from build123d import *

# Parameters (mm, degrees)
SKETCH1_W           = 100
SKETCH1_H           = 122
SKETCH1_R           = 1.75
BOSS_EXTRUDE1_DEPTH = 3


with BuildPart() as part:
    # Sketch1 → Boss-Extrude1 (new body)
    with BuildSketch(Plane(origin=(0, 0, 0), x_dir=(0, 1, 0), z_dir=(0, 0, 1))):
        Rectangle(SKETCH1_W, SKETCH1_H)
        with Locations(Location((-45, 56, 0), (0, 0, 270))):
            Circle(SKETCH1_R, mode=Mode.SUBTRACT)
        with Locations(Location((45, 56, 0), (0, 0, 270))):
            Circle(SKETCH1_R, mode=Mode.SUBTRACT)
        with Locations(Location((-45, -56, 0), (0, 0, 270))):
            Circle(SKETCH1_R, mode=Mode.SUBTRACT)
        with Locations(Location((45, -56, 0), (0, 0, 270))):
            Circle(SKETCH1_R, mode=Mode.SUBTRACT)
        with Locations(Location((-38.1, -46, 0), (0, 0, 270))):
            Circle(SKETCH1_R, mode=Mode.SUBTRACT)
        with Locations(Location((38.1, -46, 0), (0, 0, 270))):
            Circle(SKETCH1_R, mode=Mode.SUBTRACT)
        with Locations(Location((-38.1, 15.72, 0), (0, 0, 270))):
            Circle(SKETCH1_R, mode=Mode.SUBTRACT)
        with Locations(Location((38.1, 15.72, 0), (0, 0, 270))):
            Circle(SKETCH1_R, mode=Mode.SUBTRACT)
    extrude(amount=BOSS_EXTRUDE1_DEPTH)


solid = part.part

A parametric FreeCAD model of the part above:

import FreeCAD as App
import Part
import Sketcher

doc = App.newDocument("Part")
body = doc.addObject("PartDesign::Body", "Body")

# Sketch on XY plane
sketch1 = doc.addObject("Sketcher::SketchObject", "Sketch")
body.addObject(sketch1)
sketch1.AttachmentSupport = (doc.XY_Plane, [""])
sketch1.MapMode = "FlatFace"
sketch1.addGeometry([
    Part.LineSegment(App.Vector(-61, -50, 0), App.Vector(61, -50, 0)),  # 0
    Part.LineSegment(App.Vector(61, -50, 0), App.Vector(61, 50, 0)),  # 1
    Part.LineSegment(App.Vector(61, 50, 0), App.Vector(-61, 50, 0)),  # 2
    Part.LineSegment(App.Vector(-61, 50, 0), App.Vector(-61, -50, 0)),  # 3
    Part.Circle(App.Vector(56, -45, 0), App.Vector(0, 0, 1), 1.75),  # 4
    Part.Circle(App.Vector(46, -38.1, 0), App.Vector(0, 0, 1), 1.75),  # 5
    Part.Circle(App.Vector(56, 45, 0), App.Vector(0, 0, 1), 1.75),  # 6
    Part.Circle(App.Vector(46, 38.1, 0), App.Vector(0, 0, 1), 1.75),  # 7
    Part.Circle(App.Vector(-15.72, -38.1, 0), App.Vector(0, 0, 1), 1.75),  # 8
    Part.Circle(App.Vector(-56, -45, 0), App.Vector(0, 0, 1), 1.75),  # 9
    Part.Circle(App.Vector(-15.72, 38.1, 0), App.Vector(0, 0, 1), 1.75),  # 10
    Part.Circle(App.Vector(-56, 45, 0), App.Vector(0, 0, 1), 1.75),  # 11
], False)
sketch1.addConstraint([
    Sketcher.Constraint("Coincident", 0, 2, 1, 1),
    Sketcher.Constraint("Coincident", 1, 2, 2, 1),
    Sketcher.Constraint("Coincident", 2, 2, 3, 1),
    Sketcher.Constraint("Coincident", 3, 2, 0, 1),
    Sketcher.Constraint("Horizontal", 0),
    Sketcher.Constraint("Vertical", 1),
    Sketcher.Constraint("Horizontal", 2),
    Sketcher.Constraint("Vertical", 3),
    Sketcher.Constraint("Equal", 4, 5),
    Sketcher.Constraint("Equal", 5, 6),
    Sketcher.Constraint("Equal", 6, 7),
    Sketcher.Constraint("Equal", 7, 8),
    Sketcher.Constraint("Equal", 8, 9),
    Sketcher.Constraint("Equal", 9, 10),
    Sketcher.Constraint("Equal", 10, 11),
    Sketcher.Constraint("Symmetric", 6, 3, 9, 3, -1, 1),
    Sketcher.Constraint("Symmetric", 4, 3, 11, 3, -1, 1),
    Sketcher.Constraint("Symmetric", 0, 2, 2, 2, -1, 1),
    Sketcher.Constraint("Symmetric", 4, 3, 9, 3, -2),
    Sketcher.Constraint("Symmetric", 5, 3, 7, 3, -1),
    Sketcher.Constraint("Symmetric", 8, 3, 10, 3, -1),
    Sketcher.Constraint("Horizontal", 5, 3, 8, 3),
    Sketcher.Constraint("Diameter", 4, 3.5),
    Sketcher.Constraint("DistanceX", 0, 1, 0, 2, 122.0),
    Sketcher.Constraint("DistanceY", 1, 1, 1, 2, 100.0),
    Sketcher.Constraint("DistanceX", -1, 1, 4, 3, 56.0),
    Sketcher.Constraint("DistanceY", 4, 3, -1, 1, 45.0),
    Sketcher.Constraint("DistanceX", -1, 1, 5, 3, 46.0),
    Sketcher.Constraint("DistanceY", 5, 3, -1, 1, 38.1),
    Sketcher.Constraint("DistanceX", 8, 3, -1, 1, 15.72),
])
pad1 = doc.addObject("PartDesign::Pad", "Pad")
body.addObject(pad1)
pad1.Profile = sketch1
pad1.Length = 3

doc.recompute()
